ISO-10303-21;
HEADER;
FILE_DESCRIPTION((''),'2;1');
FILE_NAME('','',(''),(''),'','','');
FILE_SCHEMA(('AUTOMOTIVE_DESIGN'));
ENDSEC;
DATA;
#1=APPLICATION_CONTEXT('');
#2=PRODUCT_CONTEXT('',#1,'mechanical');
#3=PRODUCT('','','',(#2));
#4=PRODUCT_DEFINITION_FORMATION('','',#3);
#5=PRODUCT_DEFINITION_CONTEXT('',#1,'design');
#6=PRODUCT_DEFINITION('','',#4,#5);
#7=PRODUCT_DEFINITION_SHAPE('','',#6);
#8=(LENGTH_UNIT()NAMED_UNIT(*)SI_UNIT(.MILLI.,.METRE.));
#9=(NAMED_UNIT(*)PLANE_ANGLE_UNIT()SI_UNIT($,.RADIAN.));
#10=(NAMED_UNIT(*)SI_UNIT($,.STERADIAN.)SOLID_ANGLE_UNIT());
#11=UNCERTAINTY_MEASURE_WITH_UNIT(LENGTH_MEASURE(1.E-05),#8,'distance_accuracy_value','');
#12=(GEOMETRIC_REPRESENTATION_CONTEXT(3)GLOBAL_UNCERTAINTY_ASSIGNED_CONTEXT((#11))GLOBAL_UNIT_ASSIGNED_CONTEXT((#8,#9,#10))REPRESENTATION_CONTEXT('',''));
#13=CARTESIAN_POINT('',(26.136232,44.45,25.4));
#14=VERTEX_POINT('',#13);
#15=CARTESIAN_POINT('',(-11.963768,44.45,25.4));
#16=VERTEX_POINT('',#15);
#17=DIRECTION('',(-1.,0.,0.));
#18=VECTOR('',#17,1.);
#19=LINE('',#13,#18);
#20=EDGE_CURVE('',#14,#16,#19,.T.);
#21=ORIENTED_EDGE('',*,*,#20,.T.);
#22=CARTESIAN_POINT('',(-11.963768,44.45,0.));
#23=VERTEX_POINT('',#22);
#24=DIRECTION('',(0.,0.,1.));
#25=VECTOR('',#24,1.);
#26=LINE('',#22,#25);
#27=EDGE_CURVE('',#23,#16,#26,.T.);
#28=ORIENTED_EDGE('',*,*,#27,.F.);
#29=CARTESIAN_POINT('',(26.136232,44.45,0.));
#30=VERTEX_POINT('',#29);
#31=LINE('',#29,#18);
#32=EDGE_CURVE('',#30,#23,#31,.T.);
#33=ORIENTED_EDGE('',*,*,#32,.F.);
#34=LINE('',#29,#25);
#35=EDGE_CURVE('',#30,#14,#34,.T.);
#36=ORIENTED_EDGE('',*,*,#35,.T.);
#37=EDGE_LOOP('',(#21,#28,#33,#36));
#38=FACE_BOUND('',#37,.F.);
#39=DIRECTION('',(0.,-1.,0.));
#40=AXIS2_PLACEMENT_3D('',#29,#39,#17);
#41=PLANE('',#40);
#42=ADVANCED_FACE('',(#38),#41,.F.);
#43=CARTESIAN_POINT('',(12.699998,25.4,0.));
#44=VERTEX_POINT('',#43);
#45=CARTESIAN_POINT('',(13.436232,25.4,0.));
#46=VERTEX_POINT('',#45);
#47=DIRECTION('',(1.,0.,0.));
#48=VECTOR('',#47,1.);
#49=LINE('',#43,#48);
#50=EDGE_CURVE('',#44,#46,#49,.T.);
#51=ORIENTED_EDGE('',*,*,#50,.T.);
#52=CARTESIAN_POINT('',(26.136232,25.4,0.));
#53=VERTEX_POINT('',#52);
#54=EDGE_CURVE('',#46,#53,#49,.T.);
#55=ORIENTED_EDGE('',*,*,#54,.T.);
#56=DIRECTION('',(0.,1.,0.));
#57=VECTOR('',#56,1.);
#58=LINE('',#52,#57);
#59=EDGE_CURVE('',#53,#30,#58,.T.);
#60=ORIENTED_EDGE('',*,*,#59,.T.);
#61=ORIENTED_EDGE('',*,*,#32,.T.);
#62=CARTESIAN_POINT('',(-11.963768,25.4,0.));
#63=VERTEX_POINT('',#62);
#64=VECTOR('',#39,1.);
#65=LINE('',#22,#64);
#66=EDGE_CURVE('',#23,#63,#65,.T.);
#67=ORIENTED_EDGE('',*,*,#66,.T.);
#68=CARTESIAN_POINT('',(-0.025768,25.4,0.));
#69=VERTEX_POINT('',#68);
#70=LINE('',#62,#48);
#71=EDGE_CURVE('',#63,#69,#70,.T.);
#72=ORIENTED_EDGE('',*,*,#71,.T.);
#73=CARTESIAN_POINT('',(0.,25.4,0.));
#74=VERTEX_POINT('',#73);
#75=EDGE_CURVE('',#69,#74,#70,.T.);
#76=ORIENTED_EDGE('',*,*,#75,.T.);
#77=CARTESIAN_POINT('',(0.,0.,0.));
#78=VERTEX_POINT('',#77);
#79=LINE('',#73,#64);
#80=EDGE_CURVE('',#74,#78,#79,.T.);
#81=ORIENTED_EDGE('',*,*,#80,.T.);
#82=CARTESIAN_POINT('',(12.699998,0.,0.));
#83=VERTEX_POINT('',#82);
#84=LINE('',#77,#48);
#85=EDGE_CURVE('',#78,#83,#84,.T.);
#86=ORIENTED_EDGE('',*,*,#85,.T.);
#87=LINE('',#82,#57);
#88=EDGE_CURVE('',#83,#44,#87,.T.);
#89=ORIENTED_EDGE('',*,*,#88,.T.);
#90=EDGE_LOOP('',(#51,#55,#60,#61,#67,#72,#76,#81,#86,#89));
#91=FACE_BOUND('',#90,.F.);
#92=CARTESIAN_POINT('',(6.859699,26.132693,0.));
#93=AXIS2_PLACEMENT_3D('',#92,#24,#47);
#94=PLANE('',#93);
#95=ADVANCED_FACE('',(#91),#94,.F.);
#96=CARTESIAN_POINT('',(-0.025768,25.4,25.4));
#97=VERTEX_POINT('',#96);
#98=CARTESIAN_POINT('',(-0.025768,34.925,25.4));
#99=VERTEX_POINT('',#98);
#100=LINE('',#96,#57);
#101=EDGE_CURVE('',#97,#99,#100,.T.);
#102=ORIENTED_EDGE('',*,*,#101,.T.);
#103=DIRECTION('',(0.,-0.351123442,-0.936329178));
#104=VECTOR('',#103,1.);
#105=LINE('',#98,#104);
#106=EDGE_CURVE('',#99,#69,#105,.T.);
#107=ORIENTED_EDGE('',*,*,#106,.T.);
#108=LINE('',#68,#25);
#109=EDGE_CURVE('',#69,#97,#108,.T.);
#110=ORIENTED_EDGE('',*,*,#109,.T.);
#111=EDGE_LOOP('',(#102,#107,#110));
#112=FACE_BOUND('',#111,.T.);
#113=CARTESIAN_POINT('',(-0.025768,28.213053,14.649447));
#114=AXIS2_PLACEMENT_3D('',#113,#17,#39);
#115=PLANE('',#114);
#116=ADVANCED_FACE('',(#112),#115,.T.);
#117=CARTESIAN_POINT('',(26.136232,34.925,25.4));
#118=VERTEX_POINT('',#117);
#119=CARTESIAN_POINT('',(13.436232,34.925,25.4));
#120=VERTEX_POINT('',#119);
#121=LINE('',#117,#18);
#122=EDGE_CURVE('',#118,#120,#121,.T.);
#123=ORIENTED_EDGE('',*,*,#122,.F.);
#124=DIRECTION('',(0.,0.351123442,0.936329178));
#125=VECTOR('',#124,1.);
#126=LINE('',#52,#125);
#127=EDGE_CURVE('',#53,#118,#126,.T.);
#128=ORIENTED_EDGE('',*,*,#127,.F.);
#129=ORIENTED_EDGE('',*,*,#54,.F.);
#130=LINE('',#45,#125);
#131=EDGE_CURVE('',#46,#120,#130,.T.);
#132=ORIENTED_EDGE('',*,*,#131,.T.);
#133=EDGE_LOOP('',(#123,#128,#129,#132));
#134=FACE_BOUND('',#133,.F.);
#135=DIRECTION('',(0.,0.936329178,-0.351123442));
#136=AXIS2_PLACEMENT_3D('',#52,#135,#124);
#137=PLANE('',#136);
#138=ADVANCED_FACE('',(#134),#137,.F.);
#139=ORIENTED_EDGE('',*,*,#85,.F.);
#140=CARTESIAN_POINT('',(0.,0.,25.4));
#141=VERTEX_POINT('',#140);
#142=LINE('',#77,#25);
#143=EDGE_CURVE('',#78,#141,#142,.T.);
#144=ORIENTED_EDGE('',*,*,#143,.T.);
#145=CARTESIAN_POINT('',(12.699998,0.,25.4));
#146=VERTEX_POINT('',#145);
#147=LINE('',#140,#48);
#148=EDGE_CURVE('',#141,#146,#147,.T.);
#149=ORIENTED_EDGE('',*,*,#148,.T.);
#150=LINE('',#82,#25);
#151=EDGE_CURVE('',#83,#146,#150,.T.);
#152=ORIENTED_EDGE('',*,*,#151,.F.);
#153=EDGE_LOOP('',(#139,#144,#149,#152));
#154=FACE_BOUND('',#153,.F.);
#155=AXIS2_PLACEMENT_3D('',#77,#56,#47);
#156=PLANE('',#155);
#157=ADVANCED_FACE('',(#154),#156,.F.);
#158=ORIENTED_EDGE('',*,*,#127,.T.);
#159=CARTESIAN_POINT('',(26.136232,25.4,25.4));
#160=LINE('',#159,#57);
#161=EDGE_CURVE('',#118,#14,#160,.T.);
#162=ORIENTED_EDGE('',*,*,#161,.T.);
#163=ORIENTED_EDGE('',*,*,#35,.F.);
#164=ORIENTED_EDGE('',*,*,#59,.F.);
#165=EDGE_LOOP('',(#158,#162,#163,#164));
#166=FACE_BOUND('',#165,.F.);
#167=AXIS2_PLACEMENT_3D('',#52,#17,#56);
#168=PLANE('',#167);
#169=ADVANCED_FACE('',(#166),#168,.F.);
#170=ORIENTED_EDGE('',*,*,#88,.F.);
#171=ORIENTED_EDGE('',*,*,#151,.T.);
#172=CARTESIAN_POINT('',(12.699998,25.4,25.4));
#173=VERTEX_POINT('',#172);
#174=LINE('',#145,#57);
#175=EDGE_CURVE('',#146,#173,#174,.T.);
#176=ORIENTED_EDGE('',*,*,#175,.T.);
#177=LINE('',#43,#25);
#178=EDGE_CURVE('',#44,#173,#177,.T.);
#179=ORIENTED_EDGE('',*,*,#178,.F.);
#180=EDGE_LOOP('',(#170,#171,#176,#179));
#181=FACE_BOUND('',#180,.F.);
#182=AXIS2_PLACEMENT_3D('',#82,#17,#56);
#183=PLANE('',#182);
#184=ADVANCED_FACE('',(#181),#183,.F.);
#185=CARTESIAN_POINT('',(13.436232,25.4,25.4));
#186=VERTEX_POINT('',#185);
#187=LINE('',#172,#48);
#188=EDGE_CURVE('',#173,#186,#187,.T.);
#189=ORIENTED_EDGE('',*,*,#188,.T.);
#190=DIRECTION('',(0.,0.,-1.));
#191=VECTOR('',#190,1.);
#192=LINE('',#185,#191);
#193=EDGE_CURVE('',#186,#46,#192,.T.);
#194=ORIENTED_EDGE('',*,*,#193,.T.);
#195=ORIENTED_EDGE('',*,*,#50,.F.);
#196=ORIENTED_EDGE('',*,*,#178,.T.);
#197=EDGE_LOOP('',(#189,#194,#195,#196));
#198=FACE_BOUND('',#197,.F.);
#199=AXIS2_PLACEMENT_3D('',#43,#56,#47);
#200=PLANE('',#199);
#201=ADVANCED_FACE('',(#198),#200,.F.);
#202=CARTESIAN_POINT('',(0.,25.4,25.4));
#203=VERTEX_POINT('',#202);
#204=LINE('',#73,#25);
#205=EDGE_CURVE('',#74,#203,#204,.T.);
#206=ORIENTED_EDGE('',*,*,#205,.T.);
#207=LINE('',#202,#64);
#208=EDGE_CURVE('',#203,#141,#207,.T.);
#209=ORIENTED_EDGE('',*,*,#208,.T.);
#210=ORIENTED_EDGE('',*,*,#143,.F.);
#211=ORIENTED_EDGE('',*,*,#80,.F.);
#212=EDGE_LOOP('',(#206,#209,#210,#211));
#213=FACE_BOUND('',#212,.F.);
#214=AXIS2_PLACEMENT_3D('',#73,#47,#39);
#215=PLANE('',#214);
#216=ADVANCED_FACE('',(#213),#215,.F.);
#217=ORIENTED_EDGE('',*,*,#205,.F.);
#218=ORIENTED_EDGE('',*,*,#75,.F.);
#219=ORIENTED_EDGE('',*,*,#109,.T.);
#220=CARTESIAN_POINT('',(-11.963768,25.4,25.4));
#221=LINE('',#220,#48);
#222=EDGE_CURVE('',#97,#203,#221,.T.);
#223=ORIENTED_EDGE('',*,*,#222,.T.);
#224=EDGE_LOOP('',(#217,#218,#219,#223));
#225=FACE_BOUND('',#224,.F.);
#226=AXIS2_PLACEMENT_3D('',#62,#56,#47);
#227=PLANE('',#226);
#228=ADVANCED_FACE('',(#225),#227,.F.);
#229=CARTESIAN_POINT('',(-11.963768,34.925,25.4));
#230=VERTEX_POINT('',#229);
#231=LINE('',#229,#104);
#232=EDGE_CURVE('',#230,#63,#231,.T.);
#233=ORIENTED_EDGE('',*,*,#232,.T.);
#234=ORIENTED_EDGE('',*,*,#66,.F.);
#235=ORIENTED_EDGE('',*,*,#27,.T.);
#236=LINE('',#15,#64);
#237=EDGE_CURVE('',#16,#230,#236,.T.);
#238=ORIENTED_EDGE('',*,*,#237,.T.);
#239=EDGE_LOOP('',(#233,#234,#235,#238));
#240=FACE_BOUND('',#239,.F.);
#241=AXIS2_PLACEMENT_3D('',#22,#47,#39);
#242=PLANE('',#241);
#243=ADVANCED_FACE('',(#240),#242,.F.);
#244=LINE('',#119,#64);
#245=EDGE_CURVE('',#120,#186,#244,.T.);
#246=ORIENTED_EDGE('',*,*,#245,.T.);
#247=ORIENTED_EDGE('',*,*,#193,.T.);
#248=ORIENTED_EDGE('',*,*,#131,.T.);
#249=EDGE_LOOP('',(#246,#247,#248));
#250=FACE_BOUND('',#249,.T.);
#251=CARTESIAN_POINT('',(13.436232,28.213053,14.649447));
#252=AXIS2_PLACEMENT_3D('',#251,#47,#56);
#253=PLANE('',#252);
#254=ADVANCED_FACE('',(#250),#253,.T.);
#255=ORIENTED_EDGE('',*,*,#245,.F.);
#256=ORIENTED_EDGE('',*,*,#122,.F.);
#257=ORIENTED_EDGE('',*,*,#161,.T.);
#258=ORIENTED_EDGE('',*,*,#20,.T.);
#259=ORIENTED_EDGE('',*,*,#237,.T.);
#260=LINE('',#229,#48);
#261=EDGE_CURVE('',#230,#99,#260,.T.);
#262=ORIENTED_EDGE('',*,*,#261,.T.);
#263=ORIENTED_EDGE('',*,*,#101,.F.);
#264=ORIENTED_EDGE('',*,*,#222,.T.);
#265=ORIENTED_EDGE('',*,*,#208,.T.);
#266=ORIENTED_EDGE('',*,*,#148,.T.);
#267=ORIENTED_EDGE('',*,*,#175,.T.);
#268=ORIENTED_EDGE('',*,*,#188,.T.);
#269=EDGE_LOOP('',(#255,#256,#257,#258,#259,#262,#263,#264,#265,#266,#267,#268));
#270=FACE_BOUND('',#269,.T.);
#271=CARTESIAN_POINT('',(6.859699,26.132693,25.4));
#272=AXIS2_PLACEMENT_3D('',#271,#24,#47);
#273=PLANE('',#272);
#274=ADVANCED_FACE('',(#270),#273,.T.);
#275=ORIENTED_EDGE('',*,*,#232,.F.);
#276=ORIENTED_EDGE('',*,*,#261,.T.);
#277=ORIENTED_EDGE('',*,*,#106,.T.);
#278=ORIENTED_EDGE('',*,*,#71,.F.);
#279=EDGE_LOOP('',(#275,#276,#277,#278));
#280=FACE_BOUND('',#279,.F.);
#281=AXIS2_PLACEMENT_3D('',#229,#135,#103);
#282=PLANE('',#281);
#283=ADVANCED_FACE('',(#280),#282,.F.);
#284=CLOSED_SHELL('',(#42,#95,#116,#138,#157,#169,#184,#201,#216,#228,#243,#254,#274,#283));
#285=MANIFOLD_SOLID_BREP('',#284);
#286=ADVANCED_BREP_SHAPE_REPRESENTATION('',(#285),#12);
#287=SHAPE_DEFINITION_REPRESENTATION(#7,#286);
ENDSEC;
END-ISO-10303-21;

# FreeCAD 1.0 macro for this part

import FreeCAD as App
import Part
import Sketcher

V = App.Vector
Q = App.Units.Quantity

doc = App.newDocument("Part")
body = doc.addObject("PartDesign::Body", "Body")

sketch1 = doc.addObject("Sketcher::SketchObject", "Sketch")
body.addObject(sketch1)
sketch1.AttachmentSupport = (doc.XY_Plane, [""])
sketch1.MapMode = "FlatFace"
sketch1.addGeometry([
    Part.LineSegment(V(0, 25, 0), V(0, 0, 0)),
    Part.LineSegment(V(0, 0, 0), V(13, 0, 0)),
    Part.LineSegment(V(13, 0, 0), V(13, 25, 0)),
    Part.LineSegment(V(13, 25, 0), V(26, 25, 0)),
    Part.LineSegment(V(26, 25, 0), V(26, 44, 0)),
    Part.LineSegment(V(26, 44, 0), V(-12, 44, 0)),
    Part.LineSegment(V(-12, 44, 0), V(-12, 25, 0)),
    Part.LineSegment(V(-12, 25, 0), V(0, 25, 0)),
], False)
sketch1.addConstraint([
    Sketcher.Constraint("Coincident", 0, 2, 1, 1),
    Sketcher.Constraint("Coincident", 1, 2, 2, 1),
    Sketcher.Constraint("Coincident", 2, 2, 3, 1),
    Sketcher.Constraint("Coincident", 3, 2, 4, 1),
    Sketcher.Constraint("Coincident", 4, 2, 5, 1),
    Sketcher.Constraint("Coincident", 5, 2, 6, 1),
    Sketcher.Constraint("Coincident", 6, 2, 7, 1),
    Sketcher.Constraint("Coincident", 7, 2, 0, 1),
    Sketcher.Constraint("Vertical", 0),
    Sketcher.Constraint("Horizontal", 1),
    Sketcher.Constraint("Vertical", 2),
    Sketcher.Constraint("Horizontal", 3),
    Sketcher.Constraint("Vertical", 4),
    Sketcher.Constraint("Horizontal", 5),
    Sketcher.Constraint("Vertical", 6),
    Sketcher.Constraint("Horizontal", 7),
    Sketcher.Constraint("Coincident", 0, 2, -1, 1),
    Sketcher.Constraint("Horizontal", 3, 2, 6, 2),
    Sketcher.Constraint("DistanceY", 0, 2, 0, 1, Q("1 in")),
    Sketcher.Constraint("DistanceX", 1, 1, 1, 2, Q("0.4999999 in")),
    Sketcher.Constraint("DistanceX", 5, 2, 5, 1, Q("1.5 in")),
    Sketcher.Constraint("DistanceY", 4, 1, 4, 2, Q("0.75 in")),
    Sketcher.Constraint("DistanceX", 3, 1, 3, 2, 13.436234),
])
pad1 = doc.addObject("PartDesign::Pad", "Pad")
body.addObject(pad1)
pad1.Profile = sketch1
pad1.Length = Q("1 in")

sketch2 = doc.addObject("Sketcher::SketchObject", "Sketch001")
body.addObject(sketch2)
sketch2.AttachmentSupport = (doc.YZ_Plane, [""])
sketch2.MapMode = "FlatFace"
sketch2.AttachmentOffset = App.Placement(V(0, 0, -11.963768), App.Rotation())
sketch2.addGeometry([
    Part.LineSegment(V(35, 25, 0), V(25, 0, 0)),
    Part.LineSegment(V(25, 0, 0), V(25, 25, 0)),
    Part.LineSegment(V(25, 25, 0), V(35, 25, 0)),
], False)
sketch2.addConstraint([
    Sketcher.Constraint("Coincident", 0, 2, 1, 1),
    Sketcher.Constraint("Coincident", 1, 2, 2, 1),
    Sketcher.Constraint("Coincident", 2, 2, 0, 1),
    Sketcher.Constraint("Vertical", 1),
    Sketcher.Constraint("Horizontal", 2),
    Sketcher.Constraint("PointOnObject", 0, 2, -1),
    Sketcher.Constraint("DistanceY", 1, 1, 1, 2, Q("1 in")),
    Sketcher.Constraint("DistanceX", -1, 1, 0, 2, Q("1 in")),
    Sketcher.Constraint("DistanceX", 2, 1, 2, 2, Q("0.375 in")),
])
pocket1 = doc.addObject("PartDesign::Pocket", "Pocket")
body.addObject(pocket1)
pocket1.Profile = sketch2
pocket1.Length = Q("0.47 in")
pocket1.Reversed = True

sketch3 = doc.addObject("Sketcher::SketchObject", "Sketch002")
body.addObject(sketch3)
sketch3.AttachmentSupport = (doc.YZ_Plane, [""])
sketch3.MapMode = "FlatFace"
sketch3.AttachmentOffset = App.Placement(V(0, 0, 26.136232), App.Rotation())
sketch3.addGeometry([
    Part.LineSegment(V(25, 25, 0), V(25, 0, 0)),
    Part.LineSegment(V(25, 0, 0), V(35, 25, 0)),
    Part.LineSegment(V(35, 25, 0), V(25, 25, 0)),
], False)
sketch3.addConstraint([
    Sketcher.Constraint("Coincident", 0, 2, 1, 1),
    Sketcher.Constraint("Coincident", 1, 2, 2, 1),
    Sketcher.Constraint("Coincident", 2, 2, 0, 1),
    Sketcher.Constraint("Vertical", 0),
    Sketcher.Constraint("Horizontal", 2),
    Sketcher.Constraint("PointOnObject", 0, 2, -1),
    Sketcher.Constraint("DistanceY", 0, 2, 0, 1, Q("1 in")),
    Sketcher.Constraint("DistanceX", -1, 1, 0, 2, Q("1 in")),
    Sketcher.Constraint("DistanceX", 2, 2, 2, 1, Q("0.375 in")),
])
pocket2 = doc.addObject("PartDesign::Pocket", "Pocket001")
body.addObject(pocket2)
pocket2.Profile = sketch3
pocket2.Length = Q("0.5 in")

doc.recompute()
